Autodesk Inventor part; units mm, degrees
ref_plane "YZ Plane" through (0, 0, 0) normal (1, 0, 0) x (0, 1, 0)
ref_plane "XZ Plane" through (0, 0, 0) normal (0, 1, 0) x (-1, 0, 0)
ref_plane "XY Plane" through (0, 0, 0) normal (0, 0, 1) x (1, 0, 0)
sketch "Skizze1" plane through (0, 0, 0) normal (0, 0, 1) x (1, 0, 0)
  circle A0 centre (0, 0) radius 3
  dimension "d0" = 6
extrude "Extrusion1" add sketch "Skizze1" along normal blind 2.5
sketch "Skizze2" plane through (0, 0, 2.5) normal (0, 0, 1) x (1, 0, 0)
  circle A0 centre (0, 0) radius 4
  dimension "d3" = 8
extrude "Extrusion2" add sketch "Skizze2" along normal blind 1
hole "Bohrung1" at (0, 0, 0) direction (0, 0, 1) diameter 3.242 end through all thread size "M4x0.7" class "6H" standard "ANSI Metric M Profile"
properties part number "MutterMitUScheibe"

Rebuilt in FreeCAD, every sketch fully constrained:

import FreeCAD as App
import Part
import Sketcher
from FreeCAD import Vector

doc = App.newDocument("Part")
body = doc.addObject("PartDesign::Body", "Body")

sketch1 = body.newObject("Sketcher::SketchObject", "Sketch")
sketch1.AttachmentSupport = (doc.getObject("XY_Plane"), [""])
sketch1.MapMode = "FlatFace"
sketch1.addGeometry(Part.Circle(Vector(0, 0, 0), Vector(0, 0, 1), 3), False)
sketch1.addConstraint(Sketcher.Constraint("Coincident", 0, 3, -1, 1))
sketch1.addConstraint(Sketcher.Constraint("Diameter", 0, 6.0))
pad1 = body.newObject("PartDesign::Pad", "Pad")
pad1.Profile = sketch1
pad1.Length = 2.5

sketch2 = body.newObject("Sketcher::SketchObject", "Sketch001")
sketch2.AttachmentSupport = (doc.getObject("XY_Plane"), [""])
sketch2.MapMode = "FlatFace"
sketch2.AttachmentOffset = App.Placement(Vector(0, 0, 2.5), App.Rotation())
sketch2.addGeometry(Part.Circle(Vector(0, 0, 0), Vector(0, 0, 1), 4), False)
sketch2.addConstraint(Sketcher.Constraint("Coincident", 0, 3, -1, 1))
sketch2.addConstraint(Sketcher.Constraint("Diameter", 0, 8.0))
pad2 = body.newObject("PartDesign::Pad", "Pad001")
pad2.Profile = sketch2
pad2.Length = 1

sketch3 = body.newObject("Sketcher::SketchObject", "Sketch002")
sketch3.AttachmentSupport = (doc.getObject("XY_Plane"), [""])
sketch3.MapMode = "FlatFace"
sketch3.addGeometry(Part.Circle(Vector(0, 0, 0), Vector(0, 0, 1), 1.6), False)
sketch3.addConstraint(Sketcher.Constraint("Coincident", 0, 3, -1, 1))
sketch3.addConstraint(Sketcher.Constraint("Diameter", 0, 3.242))
doc.recompute()
hole = body.newObject("PartDesign::Hole", "Hole")
hole.Profile = sketch3
hole.ThreadType = "None"
hole.Diameter = 3.242
hole.DepthType = "ThroughAll"
hole.Reversed = True

doc.recompute()
